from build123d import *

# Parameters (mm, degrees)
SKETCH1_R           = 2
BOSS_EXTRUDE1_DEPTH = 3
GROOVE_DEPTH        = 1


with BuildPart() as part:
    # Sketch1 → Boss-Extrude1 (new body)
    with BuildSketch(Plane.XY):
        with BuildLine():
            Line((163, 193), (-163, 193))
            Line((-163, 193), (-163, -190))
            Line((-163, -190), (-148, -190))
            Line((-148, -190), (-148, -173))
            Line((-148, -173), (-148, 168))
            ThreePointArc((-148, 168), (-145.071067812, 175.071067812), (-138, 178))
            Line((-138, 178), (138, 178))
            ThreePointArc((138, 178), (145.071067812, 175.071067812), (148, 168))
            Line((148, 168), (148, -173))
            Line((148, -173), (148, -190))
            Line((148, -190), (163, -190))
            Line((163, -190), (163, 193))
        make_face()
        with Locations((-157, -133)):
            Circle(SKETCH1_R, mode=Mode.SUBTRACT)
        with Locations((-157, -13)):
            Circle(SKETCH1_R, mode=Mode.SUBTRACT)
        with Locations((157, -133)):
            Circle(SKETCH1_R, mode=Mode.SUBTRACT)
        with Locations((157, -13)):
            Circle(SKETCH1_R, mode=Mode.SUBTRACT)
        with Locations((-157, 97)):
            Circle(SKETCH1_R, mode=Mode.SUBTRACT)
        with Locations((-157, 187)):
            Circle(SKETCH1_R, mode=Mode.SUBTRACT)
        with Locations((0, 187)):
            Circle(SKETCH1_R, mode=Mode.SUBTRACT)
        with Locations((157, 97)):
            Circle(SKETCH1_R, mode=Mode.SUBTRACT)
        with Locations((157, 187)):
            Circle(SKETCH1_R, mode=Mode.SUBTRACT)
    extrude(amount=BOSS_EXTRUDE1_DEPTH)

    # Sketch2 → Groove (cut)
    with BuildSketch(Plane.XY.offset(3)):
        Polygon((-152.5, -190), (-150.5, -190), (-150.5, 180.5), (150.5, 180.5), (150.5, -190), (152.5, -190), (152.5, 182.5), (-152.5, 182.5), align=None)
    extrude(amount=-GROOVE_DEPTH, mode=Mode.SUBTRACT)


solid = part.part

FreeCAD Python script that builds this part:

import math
import FreeCAD as App
import Part
import Sketcher
from FreeCAD import Vector


def add_polygon(sketch, points):
    """Adds a closed chain of lines whose ends are joined by coincident constraints."""
    first, n = sketch.GeometryCount, len(points)
    for a, b in zip(points, points[1:] + points[:1]):
        sketch.addGeometry(Part.LineSegment(App.Vector(*a, 0), App.Vector(*b, 0)), False)
    for i in range(n):
        sketch.addConstraint(Sketcher.Constraint("Coincident", first + i, 2, first + (i + 1) % n, 1))

doc = App.newDocument("Part")
body = doc.addObject("PartDesign::Body", "Body")

# Sketch on XY plane
sketch1 = body.newObject("Sketcher::SketchObject", "Sketch")
sketch1.AttachmentSupport = (doc.getObject("XY_Plane"), [""])
sketch1.MapMode = "FlatFace"
sketch1.addGeometry([
    Part.LineSegment(Vector(163, 193, 0), Vector(-163, 193, 0)),  # 0
    Part.LineSegment(Vector(-163, 193, 0), Vector(-163, -190, 0)),  # 1
    Part.LineSegment(Vector(-163, -190, 0), Vector(-148, -190, 0)),  # 2
    Part.LineSegment(Vector(-148, -190, 0), Vector(-148, 168, 0)),  # 3
    Part.ArcOfCircle(Part.Circle(Vector(-138, 168, 0), Vector(0, 0, 1), 10), math.radians(90), math.radians(180)),  # 4
    Part.LineSegment(Vector(-138, 178, 0), Vector(138, 178, 0)),  # 5
    Part.ArcOfCircle(Part.Circle(Vector(138, 168, 0), Vector(0, 0, 1), 10), math.radians(0), math.radians(90)),  # 6
    Part.LineSegment(Vector(148, 168, 0), Vector(148, -190, 0)),  # 7
    Part.LineSegment(Vector(148, -190, 0), Vector(163, -190, 0)),  # 8
    Part.LineSegment(Vector(163, -190, 0), Vector(163, 193, 0)),  # 9
    Part.Circle(Vector(-157, -133, 0), Vector(0, 0, 1), 2),  # 10
    Part.Circle(Vector(-157, -13, 0), Vector(0, 0, 1), 2),  # 11
    Part.Circle(Vector(157, -133, 0), Vector(0, 0, 1), 2),  # 12
    Part.Circle(Vector(157, -13, 0), Vector(0, 0, 1), 2),  # 13
    Part.Circle(Vector(-157, 97, 0), Vector(0, 0, 1), 2),  # 14
    Part.Circle(Vector(-157, 187, 0), Vector(0, 0, 1), 2),  # 15
    Part.Circle(Vector(157, 97, 0), Vector(0, 0, 1), 2),  # 16
    Part.Circle(Vector(0, 187, 0), Vector(0, 0, 1), 2),  # 17
    Part.Circle(Vector(157, 187, 0), Vector(0, 0, 1), 2),  # 18
], False)
sketch1.addConstraint([
    Sketcher.Constraint("Coincident", 0, 2, 1, 1),
    Sketcher.Constraint("Coincident", 1, 2, 2, 1),
    Sketcher.Constraint("Coincident", 2, 2, 3, 1),
    Sketcher.Constraint("Tangent", 3, 2, 4, 2),
    Sketcher.Constraint("Tangent", 4, 1, 5, 1),
    Sketcher.Constraint("Tangent", 5, 2, 6, 2),
    Sketcher.Constraint("Tangent", 6, 1, 7, 1),
    Sketcher.Constraint("Coincident", 7, 2, 8, 1),
    Sketcher.Constraint("Coincident", 8, 2, 9, 1),
    Sketcher.Constraint("Coincident", 9, 2, 0, 1),
    Sketcher.Constraint("Horizontal", 0),
    Sketcher.Constraint("Vertical", 1),
    Sketcher.Constraint("Horizontal", 2),
    Sketcher.Constraint("Vertical", 3),
    Sketcher.Constraint("Horizontal", 5),
    Sketcher.Constraint("Vertical", 7),
    Sketcher.Constraint("Horizontal", 8),
    Sketcher.Constraint("Vertical", 9),
    Sketcher.Constraint("Equal", 4, 6),
    Sketcher.Constraint("Equal", 10, 11),
    Sketcher.Constraint("Equal", 11, 12),
    Sketcher.Constraint("Equal", 12, 13),
    Sketcher.Constraint("Equal", 13, 14),
    Sketcher.Constraint("Equal", 14, 15),
    Sketcher.Constraint("Equal", 15, 16),
    Sketcher.Constraint("Equal", 16, 17),
    Sketcher.Constraint("Equal", 17, 18),
    Sketcher.Constraint("Symmetric", 10, 3, 12, 3, -2),
    Sketcher.Constraint("Symmetric", 11, 3, 13, 3, -2),
    Sketcher.Constraint("Symmetric", 14, 3, 16, 3, -2),
    Sketcher.Constraint("Symmetric", 15, 3, 18, 3, -2),
    Sketcher.Constraint("Symmetric", 2, 2, 7, 2, -2),
    Sketcher.Constraint("PointOnObject", 17, 3, -2),
    Sketcher.Constraint("Horizontal", 15, 3, 17, 3),
    Sketcher.Constraint("Vertical", 10, 3, 11, 3),
    Sketcher.Constraint("Vertical", 11, 3, 14, 3),
    Sketcher.Constraint("Vertical", 14, 3, 15, 3),
    Sketcher.Constraint("Equal", 2, 8),
    Sketcher.Constraint("Diameter", 10, 4.0),
    Sketcher.Constraint("Radius", 4, 10.0),
    Sketcher.Constraint("DistanceX", 0, 2, 0, 1, 326.0),
    Sketcher.Constraint("DistanceX", 2, 1, 2, 2, 15.0),
    Sketcher.Constraint("DistanceY", 1, 2, 1, 1, 383.0),
    Sketcher.Constraint("DistanceY", 3, 1, 3, 2, 358.0),
    Sketcher.Constraint("DistanceY", -1, 1, 4, 3, 168.0),
    Sketcher.Constraint("DistanceX", 10, 3, -1, 1, 157.0),
    Sketcher.Constraint("DistanceY", 10, 3, -1, 1, 133.0),
    Sketcher.Constraint("DistanceY", 11, 3, -1, 1, 13.0),
    Sketcher.Constraint("DistanceY", -1, 1, 14, 3, 97.0),
    Sketcher.Constraint("DistanceY", -1, 1, 15, 3, 187.0),
])
pad1 = body.newObject("PartDesign::Pad", "Pad")
pad1.Profile = sketch1
pad1.Length = 3

# Sketch on XY plane
sketch2 = body.newObject("Sketcher::SketchObject", "Sketch001")
sketch2.AttachmentSupport = (doc.getObject("XY_Plane"), [""])
sketch2.MapMode = "FlatFace"
sketch2.AttachmentOffset = App.Placement(Vector(0, 0, 3), App.Rotation())
add_polygon(sketch2, [(-152.5, -190), (-150.5, -190), (-150.5, 180.5), (150.5, 180.5), (150.5, -190), (152.5, -190), (152.5, 182.5), (-152.5, 182.5)])  # lines 0-7
sketch2.addConstraint([
    Sketcher.Constraint("Horizontal", 0),
    Sketcher.Constraint("Vertical", 1),
    Sketcher.Constraint("Horizontal", 2),
    Sketcher.Constraint("Vertical", 3),
    Sketcher.Constraint("Horizontal", 4),
    Sketcher.Constraint("Vertical", 5),
    Sketcher.Constraint("Horizontal", 6),
    Sketcher.Constraint("Vertical", 7),
    Sketcher.Constraint("Symmetric", 0, 2, 3, 2, -2),
    Sketcher.Constraint("Equal", 0, 4),
    Sketcher.Constraint("DistanceX", 0, 1, 0, 2, 2.0),
    Sketcher.Constraint("DistanceX", 2, 1, 2, 2, 301.0),
    Sketcher.Constraint("DistanceY", 1, 1, 1, 2, 370.5),
    Sketcher.Constraint("DistanceY", 5, 1, 5, 2, 372.5),
    Sketcher.Constraint("DistanceY", 0, 2, -1, 1, 190.0),
])
pocket1 = body.newObject("PartDesign::Pocket", "Pocket")
pocket1.Profile = sketch2
pocket1.Length = 1

doc.recompute()
